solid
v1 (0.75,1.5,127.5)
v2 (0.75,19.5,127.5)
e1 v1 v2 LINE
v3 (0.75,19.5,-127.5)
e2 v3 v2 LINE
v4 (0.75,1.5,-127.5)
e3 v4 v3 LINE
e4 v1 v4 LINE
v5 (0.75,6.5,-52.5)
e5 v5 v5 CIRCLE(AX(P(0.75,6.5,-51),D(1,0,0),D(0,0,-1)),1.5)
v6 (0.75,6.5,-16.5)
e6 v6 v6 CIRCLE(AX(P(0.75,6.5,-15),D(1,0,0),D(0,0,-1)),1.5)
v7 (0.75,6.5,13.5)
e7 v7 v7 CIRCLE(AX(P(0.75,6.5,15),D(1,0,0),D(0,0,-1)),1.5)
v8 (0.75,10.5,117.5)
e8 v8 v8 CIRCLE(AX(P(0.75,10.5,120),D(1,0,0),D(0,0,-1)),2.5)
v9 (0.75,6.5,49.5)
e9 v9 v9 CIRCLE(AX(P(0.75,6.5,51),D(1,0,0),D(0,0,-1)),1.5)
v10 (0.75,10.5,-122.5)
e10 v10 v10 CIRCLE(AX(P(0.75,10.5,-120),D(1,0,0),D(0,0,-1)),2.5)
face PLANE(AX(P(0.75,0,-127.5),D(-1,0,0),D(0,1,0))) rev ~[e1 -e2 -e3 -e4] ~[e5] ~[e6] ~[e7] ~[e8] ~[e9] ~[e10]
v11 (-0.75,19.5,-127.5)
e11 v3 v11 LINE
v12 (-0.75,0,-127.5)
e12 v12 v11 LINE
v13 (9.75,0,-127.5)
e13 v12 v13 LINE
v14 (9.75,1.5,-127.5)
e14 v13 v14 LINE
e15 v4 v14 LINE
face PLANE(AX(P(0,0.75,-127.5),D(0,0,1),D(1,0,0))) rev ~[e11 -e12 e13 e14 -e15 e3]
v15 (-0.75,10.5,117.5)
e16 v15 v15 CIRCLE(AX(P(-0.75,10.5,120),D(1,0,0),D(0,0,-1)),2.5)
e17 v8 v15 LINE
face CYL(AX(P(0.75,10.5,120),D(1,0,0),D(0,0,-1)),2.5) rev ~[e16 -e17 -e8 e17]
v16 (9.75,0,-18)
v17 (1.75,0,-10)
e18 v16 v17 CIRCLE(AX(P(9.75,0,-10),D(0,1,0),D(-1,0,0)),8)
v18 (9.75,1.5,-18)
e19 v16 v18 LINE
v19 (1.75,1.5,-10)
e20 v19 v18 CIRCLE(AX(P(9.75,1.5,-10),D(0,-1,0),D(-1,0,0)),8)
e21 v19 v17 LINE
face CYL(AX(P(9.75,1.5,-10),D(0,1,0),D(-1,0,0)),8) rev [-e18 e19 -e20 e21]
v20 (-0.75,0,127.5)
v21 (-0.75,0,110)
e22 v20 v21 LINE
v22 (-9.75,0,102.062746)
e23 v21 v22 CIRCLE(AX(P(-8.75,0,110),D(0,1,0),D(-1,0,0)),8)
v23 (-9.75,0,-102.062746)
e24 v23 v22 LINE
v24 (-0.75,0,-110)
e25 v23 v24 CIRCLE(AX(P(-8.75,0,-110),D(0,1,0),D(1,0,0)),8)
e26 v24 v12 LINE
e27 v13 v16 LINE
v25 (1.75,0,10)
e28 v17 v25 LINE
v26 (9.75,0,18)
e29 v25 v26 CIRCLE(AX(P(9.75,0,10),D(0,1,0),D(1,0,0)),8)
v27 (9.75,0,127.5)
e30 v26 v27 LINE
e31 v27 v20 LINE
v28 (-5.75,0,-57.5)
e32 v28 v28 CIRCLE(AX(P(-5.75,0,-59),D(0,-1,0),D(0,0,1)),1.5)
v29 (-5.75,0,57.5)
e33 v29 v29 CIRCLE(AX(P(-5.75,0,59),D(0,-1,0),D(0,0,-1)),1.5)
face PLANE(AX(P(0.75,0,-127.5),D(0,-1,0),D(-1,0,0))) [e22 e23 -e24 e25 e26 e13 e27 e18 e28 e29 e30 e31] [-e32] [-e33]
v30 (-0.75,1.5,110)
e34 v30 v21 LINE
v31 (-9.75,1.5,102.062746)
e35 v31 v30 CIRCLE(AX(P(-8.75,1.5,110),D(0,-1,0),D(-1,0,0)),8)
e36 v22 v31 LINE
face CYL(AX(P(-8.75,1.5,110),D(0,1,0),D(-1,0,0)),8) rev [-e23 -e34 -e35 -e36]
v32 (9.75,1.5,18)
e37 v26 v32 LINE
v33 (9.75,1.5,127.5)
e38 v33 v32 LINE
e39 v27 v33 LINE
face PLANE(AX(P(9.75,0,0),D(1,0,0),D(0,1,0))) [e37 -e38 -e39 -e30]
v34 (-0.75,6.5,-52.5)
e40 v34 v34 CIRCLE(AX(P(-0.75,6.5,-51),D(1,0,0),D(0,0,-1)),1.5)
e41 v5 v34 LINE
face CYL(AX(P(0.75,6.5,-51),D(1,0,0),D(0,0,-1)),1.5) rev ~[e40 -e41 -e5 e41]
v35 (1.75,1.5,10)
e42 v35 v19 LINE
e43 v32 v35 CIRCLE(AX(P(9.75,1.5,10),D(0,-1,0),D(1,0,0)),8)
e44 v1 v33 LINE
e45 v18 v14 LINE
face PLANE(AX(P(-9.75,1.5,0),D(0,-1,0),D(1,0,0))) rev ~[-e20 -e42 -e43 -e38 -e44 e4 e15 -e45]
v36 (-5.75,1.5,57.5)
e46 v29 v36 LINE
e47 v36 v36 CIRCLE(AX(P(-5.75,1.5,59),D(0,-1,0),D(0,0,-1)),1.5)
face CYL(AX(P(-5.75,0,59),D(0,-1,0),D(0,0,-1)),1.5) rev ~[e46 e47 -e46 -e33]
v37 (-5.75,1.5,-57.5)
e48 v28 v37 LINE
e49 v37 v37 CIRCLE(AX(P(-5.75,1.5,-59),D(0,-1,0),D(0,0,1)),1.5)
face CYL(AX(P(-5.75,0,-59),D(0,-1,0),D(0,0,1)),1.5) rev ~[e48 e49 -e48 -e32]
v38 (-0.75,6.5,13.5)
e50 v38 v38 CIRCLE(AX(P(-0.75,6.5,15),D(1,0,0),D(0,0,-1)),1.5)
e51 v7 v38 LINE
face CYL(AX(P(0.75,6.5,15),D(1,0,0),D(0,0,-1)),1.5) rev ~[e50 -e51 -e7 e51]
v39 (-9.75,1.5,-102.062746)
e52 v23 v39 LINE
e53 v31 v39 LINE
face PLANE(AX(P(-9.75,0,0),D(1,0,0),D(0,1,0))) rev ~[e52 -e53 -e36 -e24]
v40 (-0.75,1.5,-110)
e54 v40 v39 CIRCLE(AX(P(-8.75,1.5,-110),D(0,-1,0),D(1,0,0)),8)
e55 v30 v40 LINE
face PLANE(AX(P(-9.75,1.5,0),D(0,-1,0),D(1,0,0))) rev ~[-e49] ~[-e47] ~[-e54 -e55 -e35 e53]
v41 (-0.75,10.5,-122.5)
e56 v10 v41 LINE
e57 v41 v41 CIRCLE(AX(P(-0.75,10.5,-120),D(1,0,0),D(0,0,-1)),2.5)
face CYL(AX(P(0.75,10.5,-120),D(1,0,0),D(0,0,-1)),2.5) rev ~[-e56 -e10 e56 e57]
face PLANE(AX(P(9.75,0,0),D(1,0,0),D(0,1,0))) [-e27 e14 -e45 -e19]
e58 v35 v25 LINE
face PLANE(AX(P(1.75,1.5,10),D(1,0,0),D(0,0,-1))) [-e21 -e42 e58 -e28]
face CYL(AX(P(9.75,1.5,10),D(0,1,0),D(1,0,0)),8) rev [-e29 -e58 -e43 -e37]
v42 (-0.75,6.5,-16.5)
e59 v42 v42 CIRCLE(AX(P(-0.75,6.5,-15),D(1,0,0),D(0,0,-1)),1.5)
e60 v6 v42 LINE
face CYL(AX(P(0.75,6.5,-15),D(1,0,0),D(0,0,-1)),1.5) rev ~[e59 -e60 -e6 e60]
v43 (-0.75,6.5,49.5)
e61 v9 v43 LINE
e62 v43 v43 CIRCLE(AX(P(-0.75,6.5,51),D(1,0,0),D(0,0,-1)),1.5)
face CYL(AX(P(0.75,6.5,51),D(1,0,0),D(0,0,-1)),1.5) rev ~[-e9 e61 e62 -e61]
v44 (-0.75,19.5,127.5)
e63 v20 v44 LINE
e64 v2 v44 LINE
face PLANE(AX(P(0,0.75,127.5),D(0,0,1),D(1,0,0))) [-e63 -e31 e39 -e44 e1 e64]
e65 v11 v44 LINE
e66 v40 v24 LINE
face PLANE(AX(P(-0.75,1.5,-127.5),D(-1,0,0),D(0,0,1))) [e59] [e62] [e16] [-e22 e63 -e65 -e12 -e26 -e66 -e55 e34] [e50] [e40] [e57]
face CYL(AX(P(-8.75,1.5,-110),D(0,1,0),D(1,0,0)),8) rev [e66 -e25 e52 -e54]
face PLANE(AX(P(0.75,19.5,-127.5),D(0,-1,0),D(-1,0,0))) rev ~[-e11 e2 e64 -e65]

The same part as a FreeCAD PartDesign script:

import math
import FreeCAD as App
import Part
import Sketcher
Q = App.Units.Quantity

doc = App.newDocument("Part")
body = doc.addObject("PartDesign::Body", "Body")

# Sketch on XY plane
sketch1 = doc.addObject("Sketcher::SketchObject", "Sketch")
body.addObject(sketch1)
sketch1.AttachmentSupport = (doc.XY_Plane, [""])
sketch1.MapMode = "FlatFace"
sketch1.addGeometry([
    Part.LineSegment(App.Vector(-9.8, 1.5, 0), App.Vector(-9.8, 0, 0)),
    Part.LineSegment(App.Vector(-9.8, 0, 0), App.Vector(9.8, 0, 0)),
    Part.LineSegment(App.Vector(9.8, 0, 0), App.Vector(9.8, 1.5, 0)),
    Part.LineSegment(App.Vector(9.8, 1.5, 0), App.Vector(-9.8, 1.5, 0)),
], False)
sketch1.addConstraint([
    Sketcher.Constraint("Coincident", 0, 2, 1, 1),
    Sketcher.Constraint("Coincident", 1, 2, 2, 1),
    Sketcher.Constraint("Coincident", 2, 2, 3, 1),
    Sketcher.Constraint("Coincident", 3, 2, 0, 1),
    Sketcher.Constraint("Vertical", 0),
    Sketcher.Constraint("Horizontal", 1),
    Sketcher.Constraint("Vertical", 2),
    Sketcher.Constraint("Horizontal", 3),
    Sketcher.Constraint("Symmetric", 0, 2, 1, 2, -1, 1),
    Sketcher.Constraint("DistanceX", 1, 1, 1, 2, Q("19.5 mm")),
    Sketcher.Constraint("DistanceY", 0, 2, 0, 1, Q("1.5 mm")),
])
pad1 = doc.addObject("PartDesign::Pad", "Pad")
body.addObject(pad1)
pad1.Profile = sketch1
pad1.Length = 255
pad1.Midplane = True

# Sketch on XY plane
sketch2 = doc.addObject("Sketcher::SketchObject", "Sketch001")
body.addObject(sketch2)
sketch2.AttachmentSupport = (doc.XY_Plane, [""])
sketch2.MapMode = "FlatFace"
sketch2.AttachmentOffset = App.Placement(App.Vector(0, 0, -127.5), App.Rotation())
sketch2.addGeometry([
    Part.LineSegment(App.Vector(0.8, 19.5, 0), App.Vector(0.8, 0, 0)),
    Part.LineSegment(App.Vector(0.8, 0, 0), App.Vector(-0.8, 0, 0)),
    Part.LineSegment(App.Vector(-0.8, 0, 0), App.Vector(-0.8, 19.5, 0)),
    Part.LineSegment(App.Vector(-0.8, 19.5, 0), App.Vector(0.8, 19.5, 0)),
], False)
sketch2.addConstraint([
    Sketcher.Constraint("Coincident", 0, 2, 1, 1),
    Sketcher.Constraint("Coincident", 1, 2, 2, 1),
    Sketcher.Constraint("Coincident", 2, 2, 3, 1),
    Sketcher.Constraint("Coincident", 3, 2, 0, 1),
    Sketcher.Constraint("Vertical", 0),
    Sketcher.Constraint("Horizontal", 1),
    Sketcher.Constraint("Vertical", 2),
    Sketcher.Constraint("Horizontal", 3),
    Sketcher.Constraint("Symmetric", 0, 2, 1, 2, -1, 1),
    Sketcher.Constraint("DistanceX", 1, 2, 1, 1, Q("1.5 mm")),
    Sketcher.Constraint("DistanceY", 0, 2, 0, 1, Q("19.5 mm")),
])
pad2 = doc.addObject("PartDesign::Pad", "Pad001")
body.addObject(pad2)
pad2.Profile = sketch2
pad2.Length = 255

# Sketch on XZ plane
sketch3 = doc.addObject("Sketcher::SketchObject", "Sketch002")
body.addObject(sketch3)
sketch3.AttachmentSupport = (doc.XZ_Plane, [""])
sketch3.MapMode = "FlatFace"
sketch3.AttachmentOffset = App.Placement(App.Vector(0, 0, -1.5), App.Rotation())
sketch3.addGeometry([
    Part.LineSegment(App.Vector(-1, -110, 0), App.Vector(-1, -128, 0)),  # 0
    Part.ArcOfCircle(Part.Circle(App.Vector(-9, -128, 0), App.Vector(0, 0, 1), 8), math.radians(180), math.radians(360)),  # 1
    Part.LineSegment(App.Vector(-17, -128, 0), App.Vector(-17, -110, 0)),  # 2
    Part.ArcOfCircle(Part.Circle(App.Vector(-9, -110, 0), App.Vector(0, 0, 1), 8), math.radians(0), math.radians(180)),  # 3
    Part.LineSegment(App.Vector(18, 10, 0), App.Vector(18, -10, 0)),  # 4
    Part.ArcOfCircle(Part.Circle(App.Vector(10, -10, 0), App.Vector(0, 0, 1), 8), math.radians(180), math.radians(360)),  # 5
    Part.LineSegment(App.Vector(2, -10, 0), App.Vector(2, 10, 0)),  # 6
    Part.ArcOfCircle(Part.Circle(App.Vector(10, 10, 0), App.Vector(0, 0, 1), 8), math.radians(0), math.radians(180)),  # 7
    Part.LineSegment(App.Vector(-17, 110, 0), App.Vector(-17, 128, 0)),  # 8
    Part.ArcOfCircle(Part.Circle(App.Vector(-9, 128, 0), App.Vector(0, 0, 1), 8), math.radians(0), math.radians(180)),  # 9
    Part.LineSegment(App.Vector(-1, 128, 0), App.Vector(-1, 110, 0)),  # 10
    Part.ArcOfCircle(Part.Circle(App.Vector(-9, 110, 0), App.Vector(0, 0, 1), 8), math.radians(180), math.radians(360)),  # 11
], False)
sketch3.addConstraint([
    Sketcher.Constraint("Tangent", 0, 2, 1, 2),
    Sketcher.Constraint("Tangent", 1, 1, 2, 1),
    Sketcher.Constraint("Tangent", 2, 2, 3, 2),
    Sketcher.Constraint("Tangent", 3, 1, 0, 1),
    Sketcher.Constraint("Tangent", 4, 2, 5, 2),
    Sketcher.Constraint("Tangent", 5, 1, 6, 1),
    Sketcher.Constraint("Tangent", 6, 2, 7, 2),
    Sketcher.Constraint("Tangent", 7, 1, 4, 1),
    Sketcher.Constraint("Tangent", 8, 2, 9, 2),
    Sketcher.Constraint("Tangent", 9, 1, 10, 1),
    Sketcher.Constraint("Tangent", 10, 2, 11, 2),
    Sketcher.Constraint("Tangent", 11, 1, 8, 1),
    Sketcher.Constraint("Vertical", 0),
    Sketcher.Constraint("Vertical", 2),
    Sketcher.Constraint("Vertical", 4),
    Sketcher.Constraint("Vertical", 6),
    Sketcher.Constraint("Vertical", 8),
    Sketcher.Constraint("Vertical", 10),
    Sketcher.Constraint("Equal", 3, 5),
    Sketcher.Constraint("Equal", 7, 9),
    Sketcher.Constraint("Symmetric", 1, 3, 9, 3, -1),
    Sketcher.Constraint("Equal", 2, 8),
    Sketcher.Constraint("Radius", 1, Q("8 mm")),
    Sketcher.Constraint("DistanceY", 4, 2, 4, 1, Q("20 mm")),
    Sketcher.Constraint("DistanceY", 0, 2, 0, 1, Q("17.5 mm")),
    Sketcher.Constraint("DistanceY", 3, 3, -1, 1, Q("110 mm")),
    Sketcher.Constraint("DistanceY", 5, 3, -1, 1, Q("10 mm")),
    Sketcher.Constraint("DistanceX", 3, 3, 5, 3, Q("18.5 mm")),
    Sketcher.Constraint("DistanceX", 1, 3, -1, 1, Q("8.75 mm")),
])
pocket1 = doc.addObject("PartDesign::Pocket", "Pocket")
body.addObject(pocket1)
pocket1.Profile = sketch3
pocket1.Type = "ThroughAll"
pocket1.Reversed = True

# Sketch on YZ plane
sketch4 = doc.addObject("Sketcher::SketchObject", "Sketch003")
body.addObject(sketch4)
sketch4.AttachmentSupport = (doc.YZ_Plane, [""])
sketch4.MapMode = "FlatFace"
sketch4.AttachmentOffset = App.Placement(App.Vector(0, 0, 0.75), App.Rotation())
sketch4.addGeometry([
    Part.Circle(App.Vector(10.5, 120, 0), App.Vector(0, 0, 1), 2.5),
    Part.Circle(App.Vector(10.5, -120, 0), App.Vector(0, 0, 1), 2.5),
], False)
sketch4.addConstraint([
    Sketcher.Constraint("Equal", 0, 1),
    Sketcher.Constraint("Symmetric", 0, 3, 1, 3, -1),
    Sketcher.Constraint("Diameter", 0, Q("5 mm")),
    Sketcher.Constraint("DistanceY", -1, 1, 0, 3, Q("120 mm")),
    Sketcher.Constraint("DistanceX", -1, 1, 0, 3, Q("10.5 mm")),
])
pocket2 = doc.addObject("PartDesign::Pocket", "Pocket001")
body.addObject(pocket2)
pocket2.Profile = sketch4
pocket2.Type = "ThroughAll"

# Sketch on XZ plane
sketch5 = doc.addObject("Sketcher::SketchObject", "Sketch004")
body.addObject(sketch5)
sketch5.AttachmentSupport = (doc.XZ_Plane, [""])
sketch5.MapMode = "FlatFace"
sketch5.addGeometry([
    Part.Circle(App.Vector(-5.8, 59, 0), App.Vector(0, 0, 1), 1.5),
    Part.Circle(App.Vector(-5.8, -59, 0), App.Vector(0, 0, 1), 1.5),
], False)
sketch5.addConstraint([
    Sketcher.Constraint("Equal", 0, 1),
    Sketcher.Constraint("Symmetric", 0, 3, 1, 3, -1),
    Sketcher.Constraint("Diameter", 0, Q("3 mm")),
    Sketcher.Constraint("DistanceY", -1, 1, 0, 3, Q("59 mm")),
    Sketcher.Constraint("DistanceX", 0, 3, -1, 1, Q("5.75 mm")),
])
pocket3 = doc.addObject("PartDesign::Pocket", "Pocket002")
body.addObject(pocket3)
pocket3.Profile = sketch5
pocket3.Type = "ThroughAll"

# Sketch on YZ plane
sketch6 = doc.addObject("Sketcher::SketchObject", "Sketch005")
body.addObject(sketch6)
sketch6.AttachmentSupport = (doc.YZ_Plane, [""])
sketch6.MapMode = "FlatFace"
sketch6.AttachmentOffset = App.Placement(App.Vector(0, 0, 0.75), App.Rotation())
sketch6.addGeometry([
    Part.Circle(App.Vector(6.5, 51, 0), App.Vector(0, 0, 1), 1.5),
    Part.Circle(App.Vector(6.5, 15, 0), App.Vector(0, 0, 1), 1.5),
    Part.Circle(App.Vector(6.5, -15, 0), App.Vector(0, 0, 1), 1.5),
    Part.Circle(App.Vector(6.5, -51, 0), App.Vector(0, 0, 1), 1.5),
], False)
sketch6.addConstraint([
    Sketcher.Constraint("Equal", 0, 1),
    Sketcher.Constraint("Equal", 1, 2),
    Sketcher.Constraint("Equal", 2, 3),
    Sketcher.Constraint("Symmetric", 1, 3, 2, 3, -1),
    Sketcher.Constraint("Symmetric", 0, 3, 3, 3, -1),
    Sketcher.Constraint("Vertical", 0, 3, 1, 3),
    Sketcher.Constraint("Diameter", 0, Q("3 mm")),
    Sketcher.Constraint("DistanceY", -1, 1, 0, 3, Q("51 mm")),
    Sketcher.Constraint("DistanceY", -1, 1, 1, 3, Q("15 mm")),
    Sketcher.Constraint("DistanceX", -1, 1, 0, 3, Q("6.5 mm")),
])
pocket4 = doc.addObject("PartDesign::Pocket", "Pocket003")
body.addObject(pocket4)
pocket4.Profile = sketch6
pocket4.Type = "ThroughAll"

doc.recompute()
